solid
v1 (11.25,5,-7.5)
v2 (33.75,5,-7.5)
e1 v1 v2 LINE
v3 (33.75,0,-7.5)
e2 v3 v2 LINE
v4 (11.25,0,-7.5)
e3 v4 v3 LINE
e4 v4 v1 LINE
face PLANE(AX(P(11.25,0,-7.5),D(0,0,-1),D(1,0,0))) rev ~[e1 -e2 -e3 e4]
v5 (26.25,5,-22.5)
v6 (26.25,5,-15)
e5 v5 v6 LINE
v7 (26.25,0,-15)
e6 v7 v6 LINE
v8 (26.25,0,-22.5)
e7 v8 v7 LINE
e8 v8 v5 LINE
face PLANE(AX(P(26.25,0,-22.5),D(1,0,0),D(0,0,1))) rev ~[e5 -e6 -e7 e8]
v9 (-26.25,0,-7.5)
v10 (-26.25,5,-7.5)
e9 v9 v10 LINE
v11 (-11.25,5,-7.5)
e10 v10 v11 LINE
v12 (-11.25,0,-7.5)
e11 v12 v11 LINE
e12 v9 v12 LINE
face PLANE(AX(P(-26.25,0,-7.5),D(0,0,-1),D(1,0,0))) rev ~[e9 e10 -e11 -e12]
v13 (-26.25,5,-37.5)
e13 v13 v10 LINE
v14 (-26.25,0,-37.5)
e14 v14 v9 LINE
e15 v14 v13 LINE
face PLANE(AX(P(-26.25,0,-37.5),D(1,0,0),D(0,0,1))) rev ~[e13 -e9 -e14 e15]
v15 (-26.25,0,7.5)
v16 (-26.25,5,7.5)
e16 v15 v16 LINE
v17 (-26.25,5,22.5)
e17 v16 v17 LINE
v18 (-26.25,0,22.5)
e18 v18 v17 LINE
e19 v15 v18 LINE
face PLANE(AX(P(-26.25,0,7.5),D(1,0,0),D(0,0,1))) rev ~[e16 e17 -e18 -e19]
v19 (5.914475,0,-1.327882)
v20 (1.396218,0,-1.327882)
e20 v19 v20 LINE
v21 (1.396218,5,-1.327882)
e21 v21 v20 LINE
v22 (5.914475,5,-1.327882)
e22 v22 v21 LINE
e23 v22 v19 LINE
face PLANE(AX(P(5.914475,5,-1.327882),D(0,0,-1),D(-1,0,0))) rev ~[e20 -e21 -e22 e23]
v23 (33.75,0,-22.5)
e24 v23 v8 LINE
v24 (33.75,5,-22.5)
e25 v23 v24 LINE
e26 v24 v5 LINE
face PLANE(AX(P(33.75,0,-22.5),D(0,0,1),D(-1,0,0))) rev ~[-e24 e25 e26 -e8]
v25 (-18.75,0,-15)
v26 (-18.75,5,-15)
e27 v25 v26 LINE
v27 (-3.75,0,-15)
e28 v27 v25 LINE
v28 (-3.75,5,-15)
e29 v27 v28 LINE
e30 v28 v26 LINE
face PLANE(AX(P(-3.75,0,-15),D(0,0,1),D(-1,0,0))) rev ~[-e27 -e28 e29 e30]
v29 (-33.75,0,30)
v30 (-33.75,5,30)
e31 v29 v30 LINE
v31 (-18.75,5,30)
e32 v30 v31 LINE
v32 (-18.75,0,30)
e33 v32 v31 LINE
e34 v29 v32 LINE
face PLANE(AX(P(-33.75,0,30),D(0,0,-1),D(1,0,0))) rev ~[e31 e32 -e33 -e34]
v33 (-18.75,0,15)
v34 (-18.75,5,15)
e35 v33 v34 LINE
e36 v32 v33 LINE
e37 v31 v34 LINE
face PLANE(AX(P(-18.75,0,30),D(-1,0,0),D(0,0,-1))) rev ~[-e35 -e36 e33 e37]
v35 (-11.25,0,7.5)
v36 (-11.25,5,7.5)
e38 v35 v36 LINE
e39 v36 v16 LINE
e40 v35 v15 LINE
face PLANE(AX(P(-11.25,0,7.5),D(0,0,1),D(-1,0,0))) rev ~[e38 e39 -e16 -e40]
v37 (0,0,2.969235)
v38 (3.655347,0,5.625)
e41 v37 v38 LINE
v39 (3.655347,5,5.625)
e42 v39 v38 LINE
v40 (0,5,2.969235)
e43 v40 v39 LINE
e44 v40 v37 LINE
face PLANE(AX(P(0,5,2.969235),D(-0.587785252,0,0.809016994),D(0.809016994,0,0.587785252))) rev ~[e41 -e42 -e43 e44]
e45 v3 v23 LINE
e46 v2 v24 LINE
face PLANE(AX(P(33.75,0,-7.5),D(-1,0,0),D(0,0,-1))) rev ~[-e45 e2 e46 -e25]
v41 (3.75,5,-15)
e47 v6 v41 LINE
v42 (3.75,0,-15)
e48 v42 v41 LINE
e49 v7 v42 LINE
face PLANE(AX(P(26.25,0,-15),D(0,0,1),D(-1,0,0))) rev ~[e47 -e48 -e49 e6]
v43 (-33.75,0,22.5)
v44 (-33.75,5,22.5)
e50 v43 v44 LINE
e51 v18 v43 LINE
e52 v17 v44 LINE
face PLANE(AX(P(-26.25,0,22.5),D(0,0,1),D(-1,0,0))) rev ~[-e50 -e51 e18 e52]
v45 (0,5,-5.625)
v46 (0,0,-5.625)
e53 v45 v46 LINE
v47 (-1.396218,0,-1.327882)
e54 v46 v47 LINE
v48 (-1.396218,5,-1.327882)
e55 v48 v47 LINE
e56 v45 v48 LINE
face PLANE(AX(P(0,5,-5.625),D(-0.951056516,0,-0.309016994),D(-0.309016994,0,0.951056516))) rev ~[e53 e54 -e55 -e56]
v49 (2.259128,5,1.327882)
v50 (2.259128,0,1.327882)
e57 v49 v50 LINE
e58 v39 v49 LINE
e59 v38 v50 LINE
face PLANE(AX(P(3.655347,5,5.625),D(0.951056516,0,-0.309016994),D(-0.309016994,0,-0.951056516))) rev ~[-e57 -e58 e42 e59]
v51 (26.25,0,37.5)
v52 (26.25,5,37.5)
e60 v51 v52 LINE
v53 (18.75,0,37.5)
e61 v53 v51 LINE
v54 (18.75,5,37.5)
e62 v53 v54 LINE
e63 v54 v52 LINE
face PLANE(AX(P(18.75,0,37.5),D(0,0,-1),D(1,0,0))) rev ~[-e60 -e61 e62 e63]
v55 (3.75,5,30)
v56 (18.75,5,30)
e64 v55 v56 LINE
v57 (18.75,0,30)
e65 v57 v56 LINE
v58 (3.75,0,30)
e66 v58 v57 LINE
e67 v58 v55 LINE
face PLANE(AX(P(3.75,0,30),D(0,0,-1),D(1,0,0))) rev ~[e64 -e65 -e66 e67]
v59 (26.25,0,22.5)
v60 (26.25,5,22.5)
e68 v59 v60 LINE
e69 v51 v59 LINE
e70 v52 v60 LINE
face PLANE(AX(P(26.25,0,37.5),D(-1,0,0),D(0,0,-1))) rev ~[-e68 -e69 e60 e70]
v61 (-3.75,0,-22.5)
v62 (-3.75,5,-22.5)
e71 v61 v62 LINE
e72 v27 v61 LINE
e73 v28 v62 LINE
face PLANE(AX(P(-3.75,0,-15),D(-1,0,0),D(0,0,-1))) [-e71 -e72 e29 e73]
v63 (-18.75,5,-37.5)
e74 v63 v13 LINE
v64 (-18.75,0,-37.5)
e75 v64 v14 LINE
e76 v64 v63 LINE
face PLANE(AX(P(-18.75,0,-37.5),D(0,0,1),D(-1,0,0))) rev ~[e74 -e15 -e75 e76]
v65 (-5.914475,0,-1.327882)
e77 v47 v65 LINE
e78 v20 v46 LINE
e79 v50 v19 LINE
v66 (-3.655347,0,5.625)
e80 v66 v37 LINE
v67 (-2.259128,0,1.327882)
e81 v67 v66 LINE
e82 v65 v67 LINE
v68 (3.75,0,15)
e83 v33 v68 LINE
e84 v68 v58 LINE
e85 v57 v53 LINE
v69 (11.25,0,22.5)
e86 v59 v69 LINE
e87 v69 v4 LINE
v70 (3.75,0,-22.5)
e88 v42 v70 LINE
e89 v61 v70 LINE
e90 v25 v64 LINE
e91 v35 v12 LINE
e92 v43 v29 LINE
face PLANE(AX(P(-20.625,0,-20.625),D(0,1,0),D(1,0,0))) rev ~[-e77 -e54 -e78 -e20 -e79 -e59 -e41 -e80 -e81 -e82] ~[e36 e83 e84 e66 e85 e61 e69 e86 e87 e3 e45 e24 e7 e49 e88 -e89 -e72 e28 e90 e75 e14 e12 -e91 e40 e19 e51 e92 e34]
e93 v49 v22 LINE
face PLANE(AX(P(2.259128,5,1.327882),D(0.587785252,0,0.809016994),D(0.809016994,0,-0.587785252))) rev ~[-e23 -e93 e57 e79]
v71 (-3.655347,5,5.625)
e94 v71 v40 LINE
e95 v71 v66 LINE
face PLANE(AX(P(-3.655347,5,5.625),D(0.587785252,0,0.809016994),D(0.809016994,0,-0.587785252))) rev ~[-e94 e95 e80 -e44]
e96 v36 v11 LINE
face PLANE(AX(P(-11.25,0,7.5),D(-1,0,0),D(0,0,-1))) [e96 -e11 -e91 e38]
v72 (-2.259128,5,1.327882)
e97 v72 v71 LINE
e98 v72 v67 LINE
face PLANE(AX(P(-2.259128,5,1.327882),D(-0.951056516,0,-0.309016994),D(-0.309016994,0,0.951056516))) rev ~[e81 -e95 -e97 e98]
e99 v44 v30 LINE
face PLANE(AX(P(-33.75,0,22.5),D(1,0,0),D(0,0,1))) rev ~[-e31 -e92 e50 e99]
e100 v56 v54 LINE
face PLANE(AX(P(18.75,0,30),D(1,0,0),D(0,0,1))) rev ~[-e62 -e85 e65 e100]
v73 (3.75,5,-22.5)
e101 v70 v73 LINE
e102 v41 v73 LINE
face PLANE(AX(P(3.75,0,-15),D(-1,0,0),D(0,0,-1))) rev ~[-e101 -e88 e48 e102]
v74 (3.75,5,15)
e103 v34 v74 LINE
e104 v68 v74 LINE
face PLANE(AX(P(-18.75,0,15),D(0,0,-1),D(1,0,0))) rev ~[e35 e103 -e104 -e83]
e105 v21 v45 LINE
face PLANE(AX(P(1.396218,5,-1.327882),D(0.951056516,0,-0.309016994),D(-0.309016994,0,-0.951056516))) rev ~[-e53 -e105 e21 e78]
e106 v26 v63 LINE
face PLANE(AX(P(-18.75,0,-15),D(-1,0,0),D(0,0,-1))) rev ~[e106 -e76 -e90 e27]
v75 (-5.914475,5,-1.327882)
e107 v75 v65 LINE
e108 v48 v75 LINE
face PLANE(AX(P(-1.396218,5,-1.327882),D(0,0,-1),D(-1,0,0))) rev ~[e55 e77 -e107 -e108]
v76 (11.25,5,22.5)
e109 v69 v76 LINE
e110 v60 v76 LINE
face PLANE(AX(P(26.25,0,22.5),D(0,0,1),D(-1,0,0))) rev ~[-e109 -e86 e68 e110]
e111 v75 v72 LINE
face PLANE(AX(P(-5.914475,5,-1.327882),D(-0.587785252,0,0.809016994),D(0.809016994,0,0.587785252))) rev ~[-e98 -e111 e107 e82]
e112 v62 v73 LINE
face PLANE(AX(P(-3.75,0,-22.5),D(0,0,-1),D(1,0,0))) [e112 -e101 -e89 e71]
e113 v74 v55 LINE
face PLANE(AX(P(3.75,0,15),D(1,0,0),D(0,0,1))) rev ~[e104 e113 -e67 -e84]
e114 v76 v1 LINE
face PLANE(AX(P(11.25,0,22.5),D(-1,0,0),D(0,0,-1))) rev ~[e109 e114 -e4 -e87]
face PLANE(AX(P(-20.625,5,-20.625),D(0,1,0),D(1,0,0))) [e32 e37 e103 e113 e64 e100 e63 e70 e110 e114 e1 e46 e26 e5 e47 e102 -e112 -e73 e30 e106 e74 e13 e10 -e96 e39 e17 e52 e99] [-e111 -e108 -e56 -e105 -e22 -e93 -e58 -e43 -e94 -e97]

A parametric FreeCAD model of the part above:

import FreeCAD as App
import Part
import Sketcher
from FreeCAD import Vector
Q = App.Units.Quantity


def add_polygon(sketch, points):
    """Adds a closed chain of lines whose ends are joined by coincident constraints."""
    first, n = sketch.GeometryCount, len(points)
    for a, b in zip(points, points[1:] + points[:1]):
        sketch.addGeometry(Part.LineSegment(App.Vector(*a, 0), App.Vector(*b, 0)), False)
    for i in range(n):
        sketch.addConstraint(Sketcher.Constraint("Coincident", first + i, 2, first + (i + 1) % n, 1))

doc = App.newDocument("Part")
body = doc.addObject("PartDesign::Body", "Body")

sketch1 = body.newObject("Sketcher::SketchObject", "Sketch")
sketch1.AttachmentSupport = (doc.getObject("XZ_Plane"), [""])
sketch1.MapMode = "FlatFace"
add_polygon(sketch1, [(-18.75, -15), (-18.75, -37.5), (-26.25, -37.5), (-26.25, -7.5), (-11.25, -7.5), (-11.25, 7.5), (-26.25, 7.5), (-26.25, 22.5), (-33.75, 22.5), (-33.75, 30), (-18.75, 30), (-18.75, 15), (3.75, 15), (3.75, 30), (18.75, 30), (18.75, 37.5), (26.25, 37.5), (26.25, 22.5), (11.25, 22.5), (11.25, -7.5), (33.75, -7.5), (33.75, -22.5), (26.25, -22.5), (26.25, -15), (3.75, -15), (3.75, -22.5), (-3.75, -22.5), (-3.75, -15)])
sketch1.addConstraint([
    Sketcher.Constraint("Vertical", 0),
    Sketcher.Constraint("Horizontal", 1),
    Sketcher.Constraint("Vertical", 2),
    Sketcher.Constraint("Horizontal", 3),
    Sketcher.Constraint("Vertical", 4),
    Sketcher.Constraint("Horizontal", 5),
    Sketcher.Constraint("Vertical", 6),
    Sketcher.Constraint("Horizontal", 7),
    Sketcher.Constraint("Vertical", 8),
    Sketcher.Constraint("Horizontal", 9),
    Sketcher.Constraint("Vertical", 10),
    Sketcher.Constraint("Horizontal", 11),
    Sketcher.Constraint("Vertical", 12),
    Sketcher.Constraint("Horizontal", 13),
    Sketcher.Constraint("Vertical", 14),
    Sketcher.Constraint("Horizontal", 15),
    Sketcher.Constraint("Vertical", 16),
    Sketcher.Constraint("Horizontal", 17),
    Sketcher.Constraint("Vertical", 18),
    Sketcher.Constraint("Horizontal", 19),
    Sketcher.Constraint("Vertical", 20),
    Sketcher.Constraint("Horizontal", 21),
    Sketcher.Constraint("Vertical", 22),
    Sketcher.Constraint("Horizontal", 23),
    Sketcher.Constraint("Vertical", 24),
    Sketcher.Constraint("Horizontal", 25),
    Sketcher.Constraint("Vertical", 26),
    Sketcher.Constraint("Horizontal", 27),
    Sketcher.Constraint("Symmetric", 0, 2, 14, 2, -1, 1),
    Sketcher.Constraint("Symmetric", 4, 2, 18, 2, -1, 1),
    Sketcher.Constraint("Symmetric", 7, 2, 20, 2, -1, 1),
    Sketcher.Constraint("Symmetric", 11, 2, 26, 2, -1, 1),
    Sketcher.Constraint("Symmetric", 9, 2, 13, 2, -2),
    Sketcher.Constraint("Symmetric", 6, 2, 16, 2, -2),
    Sketcher.Constraint("Symmetric", 23, 2, 26, 2, -2),
    Sketcher.Constraint("Symmetric", 2, 2, 5, 2, -1),
    Sketcher.Constraint("Horizontal", 21, 2, 24, 2),
    Sketcher.Constraint("Vertical", 16, 2, 21, 2),
    Sketcher.Constraint("Equal", 1, 7),
    Sketcher.Constraint("Equal", 5, 9),
    Sketcher.Constraint("Equal", 9, 13),
    Sketcher.Constraint("Equal", 11, 19),
    Sketcher.Constraint("Equal", 23, 0),
    Sketcher.Constraint("Equal", 27, 4),
    Sketcher.Constraint("Equal", 4, 6),
    Sketcher.Constraint("Equal", 25, 8),
    Sketcher.Constraint("Equal", 6, 10),
    Sketcher.Constraint("DistanceX", 3, 1, 3, 2, 15.0),
])
pad1 = body.newObject("PartDesign::Pad", "Pad")
pad1.Profile = sketch1
pad1.Length = 5
pad1.Reversed = True

sketch2 = body.newObject("Sketcher::SketchObject", "Sketch001")
sketch2.AttachmentSupport = (doc.getObject("XZ_Plane"), [""])
sketch2.MapMode = "FlatFace"
sketch2.AttachmentOffset = App.Placement(Vector(0, 0, -5), App.Rotation())
add_polygon(sketch2, [(0, -5.625), (-1.396218, -1.327882), (-5.914475, -1.327882), (-2.259128, 1.327882), (-3.655347, 5.625), (0, 2.969235), (3.655347, 5.625), (2.259128, 1.327882), (5.914475, -1.327882), (1.396218, -1.327882)])
sketch2.addConstraint([
    Sketcher.Constraint("Horizontal", 1),
    Sketcher.Constraint("Horizontal", 8),
    Sketcher.Constraint("Symmetric", 3, 2, 5, 2, -2),
    Sketcher.Constraint("Symmetric", 2, 2, 6, 2, -2),
    Sketcher.Constraint("Symmetric", 1, 2, 7, 2, -2),
    Sketcher.Constraint("PointOnObject", 4, 2, -2),
    Sketcher.Constraint("PointOnObject", 9, 2, -2),
    Sketcher.Constraint("Parallel", 0, 3),
    Sketcher.Constraint("Parallel", 2, 5),
    Sketcher.Constraint("Parallel", 6, 9),
    Sketcher.Constraint("Equal", 0, 2),
    Sketcher.Constraint("Equal", 2, 3),
    Sketcher.Constraint("Equal", 3, 4),
    Sketcher.Constraint("Angle", 0, Q("108 deg")),
    Sketcher.Constraint("Angle", 2, Q("36 deg")),
    Sketcher.Constraint("DistanceY", -1, 1, 3, 2, 5.625),
    Sketcher.Constraint("DistanceY", 9, 2, -1, 1, 5.625),
])
pocket1 = body.newObject("PartDesign::Pocket", "Pocket")
pocket1.Profile = sketch2
pocket1.Type = "ThroughAll"
pocket1.Reversed = True

doc.recompute()
